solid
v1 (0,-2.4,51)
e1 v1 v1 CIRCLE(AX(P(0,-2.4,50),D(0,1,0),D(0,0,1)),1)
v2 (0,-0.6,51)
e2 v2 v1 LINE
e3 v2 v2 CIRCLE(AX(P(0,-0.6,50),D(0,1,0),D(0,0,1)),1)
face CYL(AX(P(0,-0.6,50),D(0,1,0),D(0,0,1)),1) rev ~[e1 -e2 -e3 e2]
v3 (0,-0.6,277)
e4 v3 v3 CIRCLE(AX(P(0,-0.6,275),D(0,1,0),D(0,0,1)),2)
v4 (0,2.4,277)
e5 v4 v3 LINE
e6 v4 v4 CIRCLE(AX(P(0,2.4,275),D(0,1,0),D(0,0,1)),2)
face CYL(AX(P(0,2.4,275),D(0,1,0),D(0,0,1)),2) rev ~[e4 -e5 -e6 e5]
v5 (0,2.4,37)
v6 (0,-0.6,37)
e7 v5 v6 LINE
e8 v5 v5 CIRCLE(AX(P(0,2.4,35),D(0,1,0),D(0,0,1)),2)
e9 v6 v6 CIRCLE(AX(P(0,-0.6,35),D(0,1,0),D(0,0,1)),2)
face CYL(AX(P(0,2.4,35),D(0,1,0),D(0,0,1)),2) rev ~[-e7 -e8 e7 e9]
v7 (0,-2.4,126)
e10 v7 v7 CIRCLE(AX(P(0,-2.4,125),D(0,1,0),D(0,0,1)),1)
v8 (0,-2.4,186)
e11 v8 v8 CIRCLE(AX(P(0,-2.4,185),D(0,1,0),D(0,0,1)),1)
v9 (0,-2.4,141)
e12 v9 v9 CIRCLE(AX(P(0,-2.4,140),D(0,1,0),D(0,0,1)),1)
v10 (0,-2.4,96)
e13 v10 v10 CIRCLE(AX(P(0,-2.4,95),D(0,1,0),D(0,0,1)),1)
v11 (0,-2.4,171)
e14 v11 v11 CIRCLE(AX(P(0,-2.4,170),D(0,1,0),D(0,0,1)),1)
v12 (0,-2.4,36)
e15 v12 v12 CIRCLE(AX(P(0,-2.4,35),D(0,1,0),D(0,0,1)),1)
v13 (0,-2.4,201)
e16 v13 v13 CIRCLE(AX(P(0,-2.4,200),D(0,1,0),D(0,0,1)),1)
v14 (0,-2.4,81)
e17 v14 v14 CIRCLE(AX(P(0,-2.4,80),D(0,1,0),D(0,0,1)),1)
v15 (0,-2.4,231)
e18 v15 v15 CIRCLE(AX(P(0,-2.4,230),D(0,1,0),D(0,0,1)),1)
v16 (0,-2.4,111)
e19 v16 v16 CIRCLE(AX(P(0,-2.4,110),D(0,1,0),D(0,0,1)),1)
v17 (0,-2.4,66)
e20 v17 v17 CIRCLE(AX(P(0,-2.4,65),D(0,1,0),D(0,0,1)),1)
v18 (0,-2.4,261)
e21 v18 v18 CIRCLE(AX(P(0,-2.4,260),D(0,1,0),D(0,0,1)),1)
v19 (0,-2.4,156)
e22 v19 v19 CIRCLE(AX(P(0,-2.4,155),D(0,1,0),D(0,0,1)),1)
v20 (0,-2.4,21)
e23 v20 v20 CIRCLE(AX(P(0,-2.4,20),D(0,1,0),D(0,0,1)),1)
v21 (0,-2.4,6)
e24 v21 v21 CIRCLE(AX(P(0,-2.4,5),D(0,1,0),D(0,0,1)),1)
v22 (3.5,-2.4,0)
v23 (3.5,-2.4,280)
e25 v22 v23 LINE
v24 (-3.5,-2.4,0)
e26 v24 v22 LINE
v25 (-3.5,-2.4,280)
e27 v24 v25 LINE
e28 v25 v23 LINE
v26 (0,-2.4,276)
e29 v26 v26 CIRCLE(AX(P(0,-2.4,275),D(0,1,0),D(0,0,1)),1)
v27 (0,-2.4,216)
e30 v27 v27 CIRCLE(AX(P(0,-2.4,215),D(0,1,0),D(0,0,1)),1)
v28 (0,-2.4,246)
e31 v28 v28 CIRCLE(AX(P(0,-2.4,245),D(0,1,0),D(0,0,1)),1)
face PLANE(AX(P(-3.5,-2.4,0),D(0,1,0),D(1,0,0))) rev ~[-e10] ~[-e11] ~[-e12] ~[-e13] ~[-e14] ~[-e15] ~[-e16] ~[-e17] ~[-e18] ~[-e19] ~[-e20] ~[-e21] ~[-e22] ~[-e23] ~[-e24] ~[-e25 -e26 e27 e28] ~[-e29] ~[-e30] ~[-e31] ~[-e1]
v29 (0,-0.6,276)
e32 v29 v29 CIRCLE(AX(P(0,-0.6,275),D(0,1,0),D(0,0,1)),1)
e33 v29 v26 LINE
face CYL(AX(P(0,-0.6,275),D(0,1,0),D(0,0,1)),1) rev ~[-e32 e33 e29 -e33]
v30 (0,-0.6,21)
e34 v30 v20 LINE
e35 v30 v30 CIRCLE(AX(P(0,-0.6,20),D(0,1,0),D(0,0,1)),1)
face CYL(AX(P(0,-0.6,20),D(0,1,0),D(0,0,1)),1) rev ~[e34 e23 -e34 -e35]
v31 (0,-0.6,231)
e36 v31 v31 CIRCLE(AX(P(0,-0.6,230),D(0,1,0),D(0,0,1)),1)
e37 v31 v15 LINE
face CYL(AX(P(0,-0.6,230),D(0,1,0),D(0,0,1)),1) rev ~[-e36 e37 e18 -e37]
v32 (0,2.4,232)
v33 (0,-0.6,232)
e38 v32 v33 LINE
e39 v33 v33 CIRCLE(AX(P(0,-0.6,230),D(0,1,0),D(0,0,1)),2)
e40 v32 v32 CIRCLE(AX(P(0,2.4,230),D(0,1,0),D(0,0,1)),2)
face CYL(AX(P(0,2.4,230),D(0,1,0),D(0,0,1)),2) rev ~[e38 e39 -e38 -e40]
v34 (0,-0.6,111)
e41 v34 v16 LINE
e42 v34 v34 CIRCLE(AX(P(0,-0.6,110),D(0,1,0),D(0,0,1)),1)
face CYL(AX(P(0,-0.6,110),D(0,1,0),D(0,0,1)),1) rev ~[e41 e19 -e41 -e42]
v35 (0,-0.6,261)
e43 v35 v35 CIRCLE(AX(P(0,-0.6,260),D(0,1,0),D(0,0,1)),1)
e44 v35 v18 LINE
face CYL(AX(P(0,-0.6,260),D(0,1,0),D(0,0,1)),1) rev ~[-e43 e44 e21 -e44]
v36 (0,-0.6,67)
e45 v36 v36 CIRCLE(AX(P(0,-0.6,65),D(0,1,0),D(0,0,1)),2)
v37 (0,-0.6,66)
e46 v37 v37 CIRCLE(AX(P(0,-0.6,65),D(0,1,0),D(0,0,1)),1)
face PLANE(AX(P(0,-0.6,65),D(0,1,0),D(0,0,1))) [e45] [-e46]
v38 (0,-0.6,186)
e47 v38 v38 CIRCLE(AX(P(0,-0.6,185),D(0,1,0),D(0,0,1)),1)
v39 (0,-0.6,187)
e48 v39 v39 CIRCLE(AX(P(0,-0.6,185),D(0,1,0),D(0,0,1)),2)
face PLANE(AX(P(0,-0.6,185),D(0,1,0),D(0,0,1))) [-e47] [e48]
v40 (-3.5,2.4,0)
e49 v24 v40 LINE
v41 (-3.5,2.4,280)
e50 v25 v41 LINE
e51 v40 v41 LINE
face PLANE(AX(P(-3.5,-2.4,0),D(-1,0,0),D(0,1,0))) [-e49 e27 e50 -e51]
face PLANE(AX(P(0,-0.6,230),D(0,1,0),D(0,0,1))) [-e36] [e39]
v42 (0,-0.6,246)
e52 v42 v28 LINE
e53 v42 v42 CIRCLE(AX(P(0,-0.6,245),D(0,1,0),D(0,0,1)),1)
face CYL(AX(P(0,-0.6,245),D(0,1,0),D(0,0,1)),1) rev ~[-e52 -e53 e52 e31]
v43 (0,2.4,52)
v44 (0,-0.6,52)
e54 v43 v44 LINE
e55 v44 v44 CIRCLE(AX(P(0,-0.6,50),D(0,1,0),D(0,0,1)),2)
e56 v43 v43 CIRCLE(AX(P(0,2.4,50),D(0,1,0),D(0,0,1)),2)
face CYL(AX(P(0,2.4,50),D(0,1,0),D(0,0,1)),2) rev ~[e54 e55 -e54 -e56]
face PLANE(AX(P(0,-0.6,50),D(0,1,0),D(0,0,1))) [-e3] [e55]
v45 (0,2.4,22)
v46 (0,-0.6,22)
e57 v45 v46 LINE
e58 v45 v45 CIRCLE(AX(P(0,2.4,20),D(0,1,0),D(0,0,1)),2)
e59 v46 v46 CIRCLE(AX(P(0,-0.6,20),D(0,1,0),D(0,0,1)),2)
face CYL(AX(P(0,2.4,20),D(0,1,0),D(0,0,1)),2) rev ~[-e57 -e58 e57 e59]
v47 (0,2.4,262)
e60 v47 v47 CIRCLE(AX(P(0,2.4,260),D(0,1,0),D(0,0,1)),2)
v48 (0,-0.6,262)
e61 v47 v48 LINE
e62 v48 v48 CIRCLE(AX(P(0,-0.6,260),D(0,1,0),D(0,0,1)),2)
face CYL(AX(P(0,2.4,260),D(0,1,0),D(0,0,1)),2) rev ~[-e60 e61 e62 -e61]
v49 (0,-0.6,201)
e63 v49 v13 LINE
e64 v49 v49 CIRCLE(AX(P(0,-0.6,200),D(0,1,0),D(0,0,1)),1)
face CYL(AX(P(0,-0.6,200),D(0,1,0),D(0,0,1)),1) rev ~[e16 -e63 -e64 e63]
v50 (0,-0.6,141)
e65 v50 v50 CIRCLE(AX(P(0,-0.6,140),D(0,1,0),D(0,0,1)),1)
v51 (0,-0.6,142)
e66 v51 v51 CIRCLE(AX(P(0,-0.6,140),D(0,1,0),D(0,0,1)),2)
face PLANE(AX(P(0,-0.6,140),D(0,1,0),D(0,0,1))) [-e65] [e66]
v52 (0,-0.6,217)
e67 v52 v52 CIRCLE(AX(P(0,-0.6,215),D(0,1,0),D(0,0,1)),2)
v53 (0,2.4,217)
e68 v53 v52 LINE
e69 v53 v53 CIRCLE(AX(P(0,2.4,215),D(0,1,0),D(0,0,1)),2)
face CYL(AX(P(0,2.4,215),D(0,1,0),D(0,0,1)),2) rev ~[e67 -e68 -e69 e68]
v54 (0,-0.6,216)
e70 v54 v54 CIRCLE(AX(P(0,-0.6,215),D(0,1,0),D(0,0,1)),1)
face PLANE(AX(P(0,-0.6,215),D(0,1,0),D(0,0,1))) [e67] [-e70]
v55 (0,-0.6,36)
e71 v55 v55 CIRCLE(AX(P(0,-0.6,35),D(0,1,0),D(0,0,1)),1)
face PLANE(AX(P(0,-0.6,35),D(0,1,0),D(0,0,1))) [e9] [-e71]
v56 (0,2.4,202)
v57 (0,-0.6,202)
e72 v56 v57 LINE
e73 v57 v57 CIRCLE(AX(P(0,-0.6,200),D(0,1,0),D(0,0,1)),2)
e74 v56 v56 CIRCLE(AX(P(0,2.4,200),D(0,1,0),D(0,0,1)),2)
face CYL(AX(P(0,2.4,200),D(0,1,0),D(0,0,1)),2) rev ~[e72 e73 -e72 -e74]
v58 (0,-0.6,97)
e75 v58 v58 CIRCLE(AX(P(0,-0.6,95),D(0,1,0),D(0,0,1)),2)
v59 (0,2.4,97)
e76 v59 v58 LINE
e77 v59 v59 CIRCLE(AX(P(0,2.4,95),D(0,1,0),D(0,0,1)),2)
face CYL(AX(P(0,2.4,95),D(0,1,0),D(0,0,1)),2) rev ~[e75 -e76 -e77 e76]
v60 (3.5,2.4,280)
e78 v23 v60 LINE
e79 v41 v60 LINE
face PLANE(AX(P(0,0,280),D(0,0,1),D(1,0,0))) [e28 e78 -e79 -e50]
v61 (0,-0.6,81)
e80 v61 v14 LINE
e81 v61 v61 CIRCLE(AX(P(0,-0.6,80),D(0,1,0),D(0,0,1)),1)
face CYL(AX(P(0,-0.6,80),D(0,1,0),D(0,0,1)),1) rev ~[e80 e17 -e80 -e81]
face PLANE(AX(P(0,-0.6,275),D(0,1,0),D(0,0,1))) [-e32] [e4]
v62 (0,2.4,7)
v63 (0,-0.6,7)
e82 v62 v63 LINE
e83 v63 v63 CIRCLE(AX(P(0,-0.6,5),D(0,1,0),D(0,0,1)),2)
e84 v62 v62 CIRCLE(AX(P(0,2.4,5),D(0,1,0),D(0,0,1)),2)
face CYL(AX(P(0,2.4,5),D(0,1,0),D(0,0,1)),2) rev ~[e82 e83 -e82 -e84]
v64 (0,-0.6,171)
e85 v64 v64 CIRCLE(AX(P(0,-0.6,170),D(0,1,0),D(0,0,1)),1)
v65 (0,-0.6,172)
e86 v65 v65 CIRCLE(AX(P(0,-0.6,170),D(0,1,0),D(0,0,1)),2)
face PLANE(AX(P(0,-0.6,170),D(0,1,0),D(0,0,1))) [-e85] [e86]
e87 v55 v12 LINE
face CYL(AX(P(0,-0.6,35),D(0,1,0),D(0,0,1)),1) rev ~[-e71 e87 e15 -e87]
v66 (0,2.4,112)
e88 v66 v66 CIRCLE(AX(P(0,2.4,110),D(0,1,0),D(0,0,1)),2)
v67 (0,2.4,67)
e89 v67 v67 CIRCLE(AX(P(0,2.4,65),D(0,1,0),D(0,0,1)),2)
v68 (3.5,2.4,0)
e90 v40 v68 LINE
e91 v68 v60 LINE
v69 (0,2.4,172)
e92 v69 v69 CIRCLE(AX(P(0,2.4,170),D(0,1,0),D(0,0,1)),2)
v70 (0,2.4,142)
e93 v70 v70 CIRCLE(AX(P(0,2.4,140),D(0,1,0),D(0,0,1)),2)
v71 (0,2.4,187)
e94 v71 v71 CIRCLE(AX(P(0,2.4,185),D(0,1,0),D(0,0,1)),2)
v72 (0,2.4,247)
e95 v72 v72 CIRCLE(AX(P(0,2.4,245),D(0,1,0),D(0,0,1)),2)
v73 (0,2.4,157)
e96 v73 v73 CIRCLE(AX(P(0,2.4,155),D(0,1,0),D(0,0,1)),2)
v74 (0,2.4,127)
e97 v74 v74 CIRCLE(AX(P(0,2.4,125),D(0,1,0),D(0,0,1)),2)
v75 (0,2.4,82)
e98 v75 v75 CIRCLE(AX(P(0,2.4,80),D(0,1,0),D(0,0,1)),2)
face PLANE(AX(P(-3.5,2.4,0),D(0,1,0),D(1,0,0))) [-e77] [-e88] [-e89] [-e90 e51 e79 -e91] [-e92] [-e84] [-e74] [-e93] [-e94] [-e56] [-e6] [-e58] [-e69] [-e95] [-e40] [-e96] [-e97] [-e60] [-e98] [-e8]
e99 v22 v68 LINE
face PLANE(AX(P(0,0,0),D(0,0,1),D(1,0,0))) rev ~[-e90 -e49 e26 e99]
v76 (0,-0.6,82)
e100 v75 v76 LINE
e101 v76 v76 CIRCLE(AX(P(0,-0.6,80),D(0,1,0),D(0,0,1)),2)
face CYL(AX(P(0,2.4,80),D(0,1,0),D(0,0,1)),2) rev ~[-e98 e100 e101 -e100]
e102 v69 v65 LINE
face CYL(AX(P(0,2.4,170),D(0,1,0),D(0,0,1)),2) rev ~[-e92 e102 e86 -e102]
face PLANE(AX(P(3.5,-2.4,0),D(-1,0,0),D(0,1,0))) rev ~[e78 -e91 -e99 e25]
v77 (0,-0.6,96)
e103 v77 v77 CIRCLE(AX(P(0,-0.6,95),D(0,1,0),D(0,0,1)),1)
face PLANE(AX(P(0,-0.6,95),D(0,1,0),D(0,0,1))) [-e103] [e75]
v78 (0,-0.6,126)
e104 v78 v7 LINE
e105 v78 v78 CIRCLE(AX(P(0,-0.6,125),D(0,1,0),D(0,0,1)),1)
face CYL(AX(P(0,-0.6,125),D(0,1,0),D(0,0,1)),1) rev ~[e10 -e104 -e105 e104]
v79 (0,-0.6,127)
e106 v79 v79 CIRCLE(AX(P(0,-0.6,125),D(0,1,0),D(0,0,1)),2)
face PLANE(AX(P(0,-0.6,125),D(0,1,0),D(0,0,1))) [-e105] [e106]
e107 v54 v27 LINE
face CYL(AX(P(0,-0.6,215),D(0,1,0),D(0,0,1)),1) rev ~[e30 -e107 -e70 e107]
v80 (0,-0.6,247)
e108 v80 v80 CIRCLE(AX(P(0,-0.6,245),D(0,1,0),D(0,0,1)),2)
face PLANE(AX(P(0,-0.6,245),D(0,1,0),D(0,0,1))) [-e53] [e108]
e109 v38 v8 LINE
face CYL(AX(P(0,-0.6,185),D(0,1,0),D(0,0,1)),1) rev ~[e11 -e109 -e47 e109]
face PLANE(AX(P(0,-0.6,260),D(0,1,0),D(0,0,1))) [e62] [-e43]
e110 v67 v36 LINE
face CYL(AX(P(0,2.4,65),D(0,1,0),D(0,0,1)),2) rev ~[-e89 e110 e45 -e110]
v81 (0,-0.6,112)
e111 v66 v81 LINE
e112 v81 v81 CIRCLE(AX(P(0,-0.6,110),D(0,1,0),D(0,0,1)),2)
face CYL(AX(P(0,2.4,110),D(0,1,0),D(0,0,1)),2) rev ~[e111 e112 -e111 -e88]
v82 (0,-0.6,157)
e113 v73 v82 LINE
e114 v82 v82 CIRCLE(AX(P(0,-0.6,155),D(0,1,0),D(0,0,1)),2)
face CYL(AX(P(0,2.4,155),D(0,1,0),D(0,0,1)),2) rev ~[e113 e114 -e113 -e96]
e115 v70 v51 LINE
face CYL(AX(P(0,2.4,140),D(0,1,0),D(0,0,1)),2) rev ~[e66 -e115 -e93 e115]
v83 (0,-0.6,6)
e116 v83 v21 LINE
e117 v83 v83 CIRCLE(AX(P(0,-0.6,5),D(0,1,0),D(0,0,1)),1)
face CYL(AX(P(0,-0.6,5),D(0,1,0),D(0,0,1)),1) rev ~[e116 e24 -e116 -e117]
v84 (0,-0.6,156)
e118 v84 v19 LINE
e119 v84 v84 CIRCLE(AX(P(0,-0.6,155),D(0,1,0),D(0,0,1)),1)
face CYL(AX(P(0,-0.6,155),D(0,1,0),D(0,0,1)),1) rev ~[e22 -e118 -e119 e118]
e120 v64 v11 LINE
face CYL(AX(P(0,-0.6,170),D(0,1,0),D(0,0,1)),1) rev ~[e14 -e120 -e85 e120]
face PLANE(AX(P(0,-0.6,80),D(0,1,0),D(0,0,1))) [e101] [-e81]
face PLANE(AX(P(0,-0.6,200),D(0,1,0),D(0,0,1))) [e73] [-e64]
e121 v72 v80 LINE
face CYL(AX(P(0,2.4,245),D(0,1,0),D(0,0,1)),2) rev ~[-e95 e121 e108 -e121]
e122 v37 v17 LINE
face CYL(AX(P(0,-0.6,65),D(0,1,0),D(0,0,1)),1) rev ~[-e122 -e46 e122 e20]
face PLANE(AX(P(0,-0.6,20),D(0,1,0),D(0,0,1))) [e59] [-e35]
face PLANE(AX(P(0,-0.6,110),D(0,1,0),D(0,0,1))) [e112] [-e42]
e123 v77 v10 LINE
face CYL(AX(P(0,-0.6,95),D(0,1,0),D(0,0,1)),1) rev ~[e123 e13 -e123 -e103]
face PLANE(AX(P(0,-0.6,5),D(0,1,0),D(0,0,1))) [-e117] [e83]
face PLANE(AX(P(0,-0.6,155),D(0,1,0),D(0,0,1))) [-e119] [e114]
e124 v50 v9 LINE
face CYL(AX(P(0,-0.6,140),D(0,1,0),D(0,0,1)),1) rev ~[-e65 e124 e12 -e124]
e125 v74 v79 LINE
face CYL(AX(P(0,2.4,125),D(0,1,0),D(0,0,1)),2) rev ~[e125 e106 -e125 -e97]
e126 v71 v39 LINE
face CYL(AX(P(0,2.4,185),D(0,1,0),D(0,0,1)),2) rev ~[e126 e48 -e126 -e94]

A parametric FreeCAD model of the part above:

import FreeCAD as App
import Part
import Sketcher

V = App.Vector

doc = App.newDocument("Part")
params = doc.addObject("Spreadsheet::Sheet", "Params")
for row, (alias, value) in enumerate([
    ("sketch1_width", "7 mm"),
    ("sketch1_height", "4.8 mm"),
    ("pad1_length", "280 mm"),
    ("sketch2_diameter", "4 mm"),
    ("pocket1_length", "3 mm"),
    ("sketch3_diameter", "2 mm"),
    ("pocket2_length", "3 mm"),
    ("linearpattern_pitch", "15 mm"),
    ("linearpattern2_pitch", "15 mm"),
], start=1):
    params.set(f"A{row}", alias)
    params.set(f"B{row}", "=" + value)
    params.setAlias(f"B{row}", alias)

body = doc.addObject("PartDesign::Body", "Body")

sketch1 = body.newObject("Sketcher::SketchObject", "Sketch")
sketch1.AttachmentSupport = (doc.getObject("XY_Plane"), [""])
sketch1.MapMode = "FlatFace"
sketch1.addGeometry([
    Part.LineSegment(V(-3.5, 2.4, 0), V(-3.5, -2.4, 0)),
    Part.LineSegment(V(-3.5, -2.4, 0), V(3.5, -2.4, 0)),
    Part.LineSegment(V(3.5, -2.4, 0), V(3.5, 2.4, 0)),
    Part.LineSegment(V(3.5, 2.4, 0), V(-3.5, 2.4, 0)),
], False)
sketch1.addConstraint([
    Sketcher.Constraint("Coincident", 0, 2, 1, 1),
    Sketcher.Constraint("Coincident", 1, 2, 2, 1),
    Sketcher.Constraint("Coincident", 2, 2, 3, 1),
    Sketcher.Constraint("Coincident", 3, 2, 0, 1),
    Sketcher.Constraint("Vertical", 0),
    Sketcher.Constraint("Horizontal", 1),
    Sketcher.Constraint("Vertical", 2),
    Sketcher.Constraint("Horizontal", 3),
    Sketcher.Constraint("Symmetric", 0, 2, 2, 2, -1, 1),
    Sketcher.Constraint("DistanceX", 1, 1, 1, 2, 7.0),
    Sketcher.Constraint("DistanceY", 0, 2, 0, 1, 4.8),
])
sketch1.setExpression("Constraints[9]", "Params.sketch1_width")
sketch1.setExpression("Constraints[10]", "Params.sketch1_height")
pad1 = body.newObject("PartDesign::Pad", "Pad")
pad1.Profile = sketch1
pad1.setExpression("Length", "Params.pad1_length")

sketch2 = body.newObject("Sketcher::SketchObject", "Sketch001")
sketch2.AttachmentSupport = (doc.getObject("XZ_Plane"), [""])
sketch2.MapMode = "FlatFace"
sketch2.AttachmentOffset = App.Placement(V(0, 0, -2.4), App.Rotation())
sketch2.addGeometry(Part.Circle(V(0, 5, 0), V(0, 0, 1), 2), False)
sketch2.addConstraint([
    Sketcher.Constraint("PointOnObject", 0, 3, -2),
    Sketcher.Constraint("Diameter", 0, 4.0),
    Sketcher.Constraint("DistanceY", -1, 1, 0, 3, 5.0),
])
sketch2.setExpression("Constraints[1]", "Params.sketch2_diameter")
pocket1 = body.newObject("PartDesign::Pocket", "Pocket")
pocket1.Profile = sketch2
pocket1.setExpression("Length", "Params.pocket1_length")
pocket1.Reversed = True

sketch3 = body.newObject("Sketcher::SketchObject", "Sketch002")
sketch3.AttachmentSupport = (doc.getObject("XZ_Plane"), [""])
sketch3.MapMode = "FlatFace"
sketch3.AttachmentOffset = App.Placement(V(0, 0, 0.6), App.Rotation())
sketch3.addGeometry(Part.Circle(V(0, 5, 0), V(0, 0, 1), 1), False)
sketch3.addConstraint([
    Sketcher.Constraint("PointOnObject", 0, 3, -2),
    Sketcher.Constraint("Diameter", 0, 2.0),
    Sketcher.Constraint("DistanceY", -1, 1, 0, 3, 5.0),
])
sketch3.setExpression("Constraints[1]", "Params.sketch3_diameter")
pocket2 = body.newObject("PartDesign::Pocket", "Pocket001")
pocket2.Profile = sketch3
pocket2.setExpression("Length", "Params.pocket2_length")
pocket2.Reversed = True
doc.recompute()

linearpattern = body.newObject("PartDesign::LinearPattern", "LinearPattern")
linearpattern.Originals = [pocket2]
linearpattern.Direction = (doc.getObject("Z_Axis"), [""])
linearpattern.Mode = "offset"
linearpattern.setExpression("Offset", "Params.linearpattern_pitch")
linearpattern.Occurrences = 19
body.Tip = linearpattern
doc.recompute()

linearpattern2 = body.newObject("PartDesign::LinearPattern", "LinearPattern001")
linearpattern2.Originals = [pocket1]
linearpattern2.Direction = (doc.getObject("Z_Axis"), [""])
linearpattern2.Mode = "offset"
linearpattern2.setExpression("Offset", "Params.linearpattern2_pitch")
linearpattern2.Occurrences = 19
body.Tip = linearpattern2

doc.recompute()
